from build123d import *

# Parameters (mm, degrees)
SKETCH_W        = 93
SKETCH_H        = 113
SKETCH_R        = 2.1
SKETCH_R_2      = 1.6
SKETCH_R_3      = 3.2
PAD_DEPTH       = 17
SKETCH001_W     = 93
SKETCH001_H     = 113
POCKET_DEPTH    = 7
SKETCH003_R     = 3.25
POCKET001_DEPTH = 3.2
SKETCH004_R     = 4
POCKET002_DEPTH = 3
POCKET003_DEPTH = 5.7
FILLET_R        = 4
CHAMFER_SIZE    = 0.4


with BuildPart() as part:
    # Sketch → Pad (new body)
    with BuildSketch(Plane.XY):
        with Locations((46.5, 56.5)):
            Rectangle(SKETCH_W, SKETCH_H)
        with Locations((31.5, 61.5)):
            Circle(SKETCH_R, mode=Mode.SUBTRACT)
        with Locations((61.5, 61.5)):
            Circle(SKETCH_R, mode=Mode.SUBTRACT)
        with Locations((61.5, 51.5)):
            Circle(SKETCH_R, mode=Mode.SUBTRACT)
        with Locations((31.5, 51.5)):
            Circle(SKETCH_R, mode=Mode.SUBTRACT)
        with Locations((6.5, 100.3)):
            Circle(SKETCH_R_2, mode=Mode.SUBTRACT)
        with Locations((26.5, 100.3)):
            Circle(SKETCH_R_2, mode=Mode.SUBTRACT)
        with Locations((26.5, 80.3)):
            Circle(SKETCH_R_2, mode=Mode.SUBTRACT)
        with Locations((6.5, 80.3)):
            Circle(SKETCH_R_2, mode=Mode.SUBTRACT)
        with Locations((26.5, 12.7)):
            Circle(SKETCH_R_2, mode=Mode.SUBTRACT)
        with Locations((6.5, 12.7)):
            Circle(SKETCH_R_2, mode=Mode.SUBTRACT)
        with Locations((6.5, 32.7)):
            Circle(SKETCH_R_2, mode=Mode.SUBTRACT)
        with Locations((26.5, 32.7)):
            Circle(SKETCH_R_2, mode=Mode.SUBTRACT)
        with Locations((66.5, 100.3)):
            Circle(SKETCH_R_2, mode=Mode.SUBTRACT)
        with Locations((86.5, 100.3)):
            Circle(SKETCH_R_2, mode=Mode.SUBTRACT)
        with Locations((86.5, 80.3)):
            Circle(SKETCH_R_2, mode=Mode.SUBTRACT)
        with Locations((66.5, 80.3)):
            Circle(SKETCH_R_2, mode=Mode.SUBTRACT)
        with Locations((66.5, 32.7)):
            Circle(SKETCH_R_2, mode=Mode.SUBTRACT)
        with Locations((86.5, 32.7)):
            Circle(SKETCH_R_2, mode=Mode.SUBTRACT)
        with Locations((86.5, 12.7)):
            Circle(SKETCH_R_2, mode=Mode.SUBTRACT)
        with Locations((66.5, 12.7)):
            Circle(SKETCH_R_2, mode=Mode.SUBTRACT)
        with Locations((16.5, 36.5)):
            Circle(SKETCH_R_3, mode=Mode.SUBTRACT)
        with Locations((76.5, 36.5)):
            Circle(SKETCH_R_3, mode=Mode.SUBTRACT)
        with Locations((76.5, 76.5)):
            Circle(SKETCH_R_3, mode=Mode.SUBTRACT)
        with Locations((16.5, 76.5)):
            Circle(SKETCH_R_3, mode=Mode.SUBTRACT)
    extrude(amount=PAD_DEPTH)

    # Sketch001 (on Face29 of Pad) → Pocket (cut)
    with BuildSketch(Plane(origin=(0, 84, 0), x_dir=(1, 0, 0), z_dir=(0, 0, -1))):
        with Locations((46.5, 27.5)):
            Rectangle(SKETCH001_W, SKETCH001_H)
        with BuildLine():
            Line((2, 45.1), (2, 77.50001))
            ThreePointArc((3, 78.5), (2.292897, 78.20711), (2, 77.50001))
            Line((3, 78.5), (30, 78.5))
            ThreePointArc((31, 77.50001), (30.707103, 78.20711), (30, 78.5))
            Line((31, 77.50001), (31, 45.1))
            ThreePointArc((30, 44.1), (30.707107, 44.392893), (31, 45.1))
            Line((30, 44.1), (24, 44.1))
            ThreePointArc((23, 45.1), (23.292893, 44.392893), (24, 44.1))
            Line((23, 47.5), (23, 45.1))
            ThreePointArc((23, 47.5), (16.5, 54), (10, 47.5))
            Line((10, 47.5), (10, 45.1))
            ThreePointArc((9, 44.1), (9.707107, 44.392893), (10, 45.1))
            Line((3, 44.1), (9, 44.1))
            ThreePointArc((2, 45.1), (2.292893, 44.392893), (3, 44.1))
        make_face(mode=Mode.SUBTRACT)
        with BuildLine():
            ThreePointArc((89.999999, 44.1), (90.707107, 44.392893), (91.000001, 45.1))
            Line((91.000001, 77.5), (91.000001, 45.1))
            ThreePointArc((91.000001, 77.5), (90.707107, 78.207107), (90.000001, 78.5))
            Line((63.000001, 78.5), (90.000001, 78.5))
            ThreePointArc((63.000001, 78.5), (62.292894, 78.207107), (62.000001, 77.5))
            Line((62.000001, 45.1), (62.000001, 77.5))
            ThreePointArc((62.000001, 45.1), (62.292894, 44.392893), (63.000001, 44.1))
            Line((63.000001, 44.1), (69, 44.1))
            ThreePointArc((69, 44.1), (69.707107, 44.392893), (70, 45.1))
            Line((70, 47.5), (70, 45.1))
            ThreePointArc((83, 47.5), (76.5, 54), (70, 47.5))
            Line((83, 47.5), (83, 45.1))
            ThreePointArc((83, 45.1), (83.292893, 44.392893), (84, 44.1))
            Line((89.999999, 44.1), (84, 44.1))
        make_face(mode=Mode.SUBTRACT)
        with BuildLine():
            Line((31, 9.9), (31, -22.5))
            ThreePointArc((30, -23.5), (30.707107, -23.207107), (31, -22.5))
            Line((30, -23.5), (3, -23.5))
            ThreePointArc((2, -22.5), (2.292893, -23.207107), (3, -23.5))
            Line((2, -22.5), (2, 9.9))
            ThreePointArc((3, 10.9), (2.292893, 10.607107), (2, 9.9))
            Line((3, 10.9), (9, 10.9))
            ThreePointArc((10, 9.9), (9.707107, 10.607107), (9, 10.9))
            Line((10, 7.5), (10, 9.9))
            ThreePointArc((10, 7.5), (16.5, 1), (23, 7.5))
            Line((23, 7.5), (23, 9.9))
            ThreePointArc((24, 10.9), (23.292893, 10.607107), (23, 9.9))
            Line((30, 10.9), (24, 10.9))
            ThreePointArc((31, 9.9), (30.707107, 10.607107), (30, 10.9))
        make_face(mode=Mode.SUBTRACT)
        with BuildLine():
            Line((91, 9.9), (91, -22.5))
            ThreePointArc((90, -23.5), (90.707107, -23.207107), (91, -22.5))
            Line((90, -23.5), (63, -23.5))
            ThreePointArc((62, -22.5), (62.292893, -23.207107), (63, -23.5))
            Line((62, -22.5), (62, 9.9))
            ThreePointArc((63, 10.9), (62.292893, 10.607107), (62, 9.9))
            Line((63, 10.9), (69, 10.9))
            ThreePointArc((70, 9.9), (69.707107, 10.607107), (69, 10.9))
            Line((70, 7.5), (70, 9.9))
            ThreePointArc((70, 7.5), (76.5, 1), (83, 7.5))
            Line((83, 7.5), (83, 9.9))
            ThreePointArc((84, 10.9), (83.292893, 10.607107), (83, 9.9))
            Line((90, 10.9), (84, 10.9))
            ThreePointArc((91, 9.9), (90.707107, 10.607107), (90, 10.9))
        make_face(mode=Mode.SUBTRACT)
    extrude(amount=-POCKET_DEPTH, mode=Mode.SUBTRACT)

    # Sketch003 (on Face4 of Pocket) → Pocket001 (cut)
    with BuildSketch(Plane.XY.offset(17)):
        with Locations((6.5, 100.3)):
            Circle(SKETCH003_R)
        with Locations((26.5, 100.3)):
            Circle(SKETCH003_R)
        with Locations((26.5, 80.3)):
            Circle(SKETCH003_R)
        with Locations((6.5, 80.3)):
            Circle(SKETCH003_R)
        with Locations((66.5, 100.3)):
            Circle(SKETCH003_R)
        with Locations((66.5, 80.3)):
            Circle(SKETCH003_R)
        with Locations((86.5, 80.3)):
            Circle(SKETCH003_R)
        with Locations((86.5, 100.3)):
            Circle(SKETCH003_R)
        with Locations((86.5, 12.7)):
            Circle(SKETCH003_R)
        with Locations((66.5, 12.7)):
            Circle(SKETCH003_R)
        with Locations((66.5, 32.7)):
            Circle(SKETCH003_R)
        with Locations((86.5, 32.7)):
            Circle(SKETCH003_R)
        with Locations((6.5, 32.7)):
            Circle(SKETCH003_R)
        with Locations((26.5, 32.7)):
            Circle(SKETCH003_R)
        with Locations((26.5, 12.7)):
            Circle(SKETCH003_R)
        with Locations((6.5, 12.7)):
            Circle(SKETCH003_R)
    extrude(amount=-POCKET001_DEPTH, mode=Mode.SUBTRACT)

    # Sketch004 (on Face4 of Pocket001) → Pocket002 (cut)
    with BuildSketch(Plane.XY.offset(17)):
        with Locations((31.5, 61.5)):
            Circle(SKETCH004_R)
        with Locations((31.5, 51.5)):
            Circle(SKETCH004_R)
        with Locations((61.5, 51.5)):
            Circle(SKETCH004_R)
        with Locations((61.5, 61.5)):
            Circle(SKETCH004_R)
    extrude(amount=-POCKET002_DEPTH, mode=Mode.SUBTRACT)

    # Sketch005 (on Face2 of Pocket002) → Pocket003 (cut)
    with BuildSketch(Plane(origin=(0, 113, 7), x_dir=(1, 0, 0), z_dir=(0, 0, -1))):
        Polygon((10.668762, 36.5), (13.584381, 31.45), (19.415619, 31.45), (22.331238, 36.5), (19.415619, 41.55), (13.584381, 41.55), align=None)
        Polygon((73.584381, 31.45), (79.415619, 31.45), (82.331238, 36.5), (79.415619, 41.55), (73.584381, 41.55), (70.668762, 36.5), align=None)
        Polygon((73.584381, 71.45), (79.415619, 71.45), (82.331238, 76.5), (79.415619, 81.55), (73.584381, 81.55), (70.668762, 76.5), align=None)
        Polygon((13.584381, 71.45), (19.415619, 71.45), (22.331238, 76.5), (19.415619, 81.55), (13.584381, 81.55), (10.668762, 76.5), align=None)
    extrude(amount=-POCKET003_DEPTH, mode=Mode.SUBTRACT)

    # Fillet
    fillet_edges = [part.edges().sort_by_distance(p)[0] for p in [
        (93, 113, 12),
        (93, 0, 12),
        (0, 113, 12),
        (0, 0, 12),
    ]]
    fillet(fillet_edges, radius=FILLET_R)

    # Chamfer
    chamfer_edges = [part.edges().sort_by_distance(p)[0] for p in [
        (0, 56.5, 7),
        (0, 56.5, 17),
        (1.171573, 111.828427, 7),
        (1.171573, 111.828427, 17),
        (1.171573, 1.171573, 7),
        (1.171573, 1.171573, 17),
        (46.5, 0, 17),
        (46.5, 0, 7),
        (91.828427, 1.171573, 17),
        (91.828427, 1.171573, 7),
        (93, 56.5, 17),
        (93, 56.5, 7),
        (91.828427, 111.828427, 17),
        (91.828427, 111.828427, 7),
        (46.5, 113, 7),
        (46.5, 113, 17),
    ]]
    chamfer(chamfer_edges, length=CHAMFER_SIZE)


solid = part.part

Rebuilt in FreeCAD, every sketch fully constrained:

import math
import FreeCAD as App
import Part
import Sketcher
from FreeCAD import Vector
Q = App.Units.Quantity


def edges_at(feature, points):
    """Names of the edges that pass closest to the given points."""
    edges = feature.Shape.Edges
    near = lambda p: min(range(len(edges)), key=lambda i: edges[i].distToShape(Part.Vertex(*p))[0])
    return sorted({f"Edge{near(p) + 1}" for p in points})

doc = App.newDocument("Part")
body = doc.addObject("PartDesign::Body", "Body")

# Sketch on XY plane
sketch1 = doc.addObject("Sketcher::SketchObject", "Sketch")
body.addObject(sketch1)
sketch1.AttachmentSupport = (doc.XY_Plane, [""])
sketch1.MapMode = "FlatFace"
sketch1.addGeometry([
    Part.LineSegment(Vector(0, 113, 0), Vector(0, 0, 0)),  # 0
    Part.LineSegment(Vector(0, 0, 0), Vector(93, 0, 0)),  # 1
    Part.LineSegment(Vector(93, 0, 0), Vector(93, 113, 0)),  # 2
    Part.LineSegment(Vector(93, 113, 0), Vector(0, 113, 0)),  # 3
    Part.Circle(Vector(6.5, 12.7, 0), Vector(0, 0, 1), 1.6),  # 4
    Part.Circle(Vector(6.5, 32.7, 0), Vector(0, 0, 1), 1.6),  # 5
    Part.Circle(Vector(26.5, 12.7, 0), Vector(0, 0, 1), 1.6),  # 6
    Part.Circle(Vector(26.5, 32.7, 0), Vector(0, 0, 1), 1.6),  # 7
    Part.Circle(Vector(16.5, 36.5, 0), Vector(0, 0, 1), 3.2),  # 8
    Part.Circle(Vector(31.5, 51.5, 0), Vector(0, 0, 1), 2.1),  # 9
    Part.Circle(Vector(66.5, 12.7, 0), Vector(0, 0, 1), 1.6),  # 10
    Part.Circle(Vector(66.5, 32.7, 0), Vector(0, 0, 1), 1.6),  # 11
    Part.Circle(Vector(86.5, 12.7, 0), Vector(0, 0, 1), 1.6),  # 12
    Part.Circle(Vector(86.5, 32.7, 0), Vector(0, 0, 1), 1.6),  # 13
    Part.Circle(Vector(61.5, 51.5, 0), Vector(0, 0, 1), 2.1),  # 14
    Part.Circle(Vector(76.5, 36.5, 0), Vector(0, 0, 1), 3.2),  # 15
    Part.Circle(Vector(16.5, 76.5, 0), Vector(0, 0, 1), 3.2),  # 16
    Part.Circle(Vector(31.5, 61.5, 0), Vector(0, 0, 1), 2.1),  # 17
    Part.Circle(Vector(6.5, 80.3, 0), Vector(0, 0, 1), 1.6),  # 18
    Part.Circle(Vector(6.5, 100.3, 0), Vector(0, 0, 1), 1.6),  # 19
    Part.Circle(Vector(26.5, 80.3, 0), Vector(0, 0, 1), 1.6),  # 20
    Part.Circle(Vector(26.5, 100.3, 0), Vector(0, 0, 1), 1.6),  # 21
    Part.Circle(Vector(61.5, 61.5, 0), Vector(0, 0, 1), 2.1),  # 22
    Part.Circle(Vector(76.5, 76.5, 0), Vector(0, 0, 1), 3.2),  # 23
    Part.Circle(Vector(66.5, 80.3, 0), Vector(0, 0, 1), 1.6),  # 24
    Part.Circle(Vector(66.5, 100.3, 0), Vector(0, 0, 1), 1.6),  # 25
    Part.Circle(Vector(86.5, 80.3, 0), Vector(0, 0, 1), 1.6),  # 26
    Part.Circle(Vector(86.5, 100.3, 0), Vector(0, 0, 1), 1.6),  # 27
], False)
sketch1.addConstraint([
    Sketcher.Constraint("Coincident", 0, 2, 1, 1),
    Sketcher.Constraint("Coincident", 1, 2, 2, 1),
    Sketcher.Constraint("Coincident", 2, 2, 3, 1),
    Sketcher.Constraint("Coincident", 3, 2, 0, 1),
    Sketcher.Constraint("Vertical", 0),
    Sketcher.Constraint("Horizontal", 1),
    Sketcher.Constraint("Vertical", 2),
    Sketcher.Constraint("Horizontal", 3),
    Sketcher.Constraint("Coincident", 0, 2, -1, 1),
    Sketcher.Constraint("Equal", 4, 5),
    Sketcher.Constraint("Equal", 5, 6),
    Sketcher.Constraint("Equal", 6, 7),
    Sketcher.Constraint("Equal", 7, 10),
    Sketcher.Constraint("Equal", 10, 11),
    Sketcher.Constraint("Equal", 11, 12),
    Sketcher.Constraint("Equal", 12, 13),
    Sketcher.Constraint("Equal", 9, 14),
    Sketcher.Constraint("Equal", 8, 15),
    Sketcher.Constraint("Equal", 15, 16),
    Sketcher.Constraint("Equal", 14, 17),
    Sketcher.Constraint("Equal", 13, 18),
    Sketcher.Constraint("Equal", 18, 19),
    Sketcher.Constraint("Equal", 19, 20),
    Sketcher.Constraint("Equal", 20, 21),
    Sketcher.Constraint("Equal", 17, 22),
    Sketcher.Constraint("Equal", 16, 23),
    Sketcher.Constraint("Equal", 21, 24),
    Sketcher.Constraint("Equal", 24, 25),
    Sketcher.Constraint("Equal", 25, 26),
    Sketcher.Constraint("Equal", 26, 27),
    Sketcher.Constraint("Horizontal", 4, 3, 6, 3),
    Sketcher.Constraint("Horizontal", 5, 3, 7, 3),
    Sketcher.Constraint("Horizontal", 6, 3, 10, 3),
    Sketcher.Constraint("Horizontal", 7, 3, 11, 3),
    Sketcher.Constraint("Horizontal", 10, 3, 12, 3),
    Sketcher.Constraint("Horizontal", 11, 3, 13, 3),
    Sketcher.Constraint("Horizontal", 9, 3, 14, 3),
    Sketcher.Constraint("Horizontal", 8, 3, 15, 3),
    Sketcher.Constraint("Horizontal", 18, 3, 20, 3),
    Sketcher.Constraint("Horizontal", 19, 3, 21, 3),
    Sketcher.Constraint("Horizontal", 17, 3, 22, 3),
    Sketcher.Constraint("Horizontal", 16, 3, 23, 3),
    Sketcher.Constraint("Horizontal", 20, 3, 24, 3),
    Sketcher.Constraint("Horizontal", 21, 3, 25, 3),
    Sketcher.Constraint("Horizontal", 24, 3, 26, 3),
    Sketcher.Constraint("Horizontal", 25, 3, 27, 3),
    Sketcher.Constraint("Vertical", 4, 3, 5, 3),
    Sketcher.Constraint("Vertical", 6, 3, 7, 3),
    Sketcher.Constraint("Vertical", 10, 3, 11, 3),
    Sketcher.Constraint("Vertical", 12, 3, 13, 3),
    Sketcher.Constraint("Vertical", 8, 3, 16, 3),
    Sketcher.Constraint("Vertical", 9, 3, 17, 3),
    Sketcher.Constraint("Vertical", 5, 3, 18, 3),
    Sketcher.Constraint("Vertical", 18, 3, 19, 3),
    Sketcher.Constraint("Vertical", 7, 3, 20, 3),
    Sketcher.Constraint("Vertical", 20, 3, 21, 3),
    Sketcher.Constraint("Vertical", 14, 3, 22, 3),
    Sketcher.Constraint("Vertical", 15, 3, 23, 3),
    Sketcher.Constraint("Vertical", 11, 3, 24, 3),
    Sketcher.Constraint("Vertical", 24, 3, 25, 3),
    Sketcher.Constraint("Vertical", 13, 3, 26, 3),
    Sketcher.Constraint("Vertical", 26, 3, 27, 3),
    Sketcher.Constraint("Diameter", 4, 3.2),
    Sketcher.Constraint("Diameter", 8, 6.4),
    Sketcher.Constraint("Diameter", 9, 4.2),
    Sketcher.Constraint("DistanceX", 1, 1, 1, 2, 93.0),
    Sketcher.Constraint("DistanceY", 0, 2, 0, 1, 113.0),
    Sketcher.Constraint("DistanceY", 4, 3, 5, 3, 20.0),
    Sketcher.Constraint("DistanceX", 4, 3, 6, 3, 20.0),
    Sketcher.Constraint("DistanceX", 5, 3, 8, 3, 10.0),
    Sketcher.Constraint("DistanceX", 7, 3, 9, 3, 5.0),
    Sketcher.Constraint("DistanceY", 8, 3, 9, 3, 15.0),
    Sketcher.Constraint("DistanceX", 6, 3, 10, 3, 40.0),
    Sketcher.Constraint("DistanceX", 10, 3, 12, 3, 20.0),
    Sketcher.Constraint("DistanceX", 14, 3, 11, 3, 5.0),
    Sketcher.Constraint("DistanceX", 11, 3, 15, 3, 10.0),
    Sketcher.Constraint("DistanceY", 9, 3, 16, 3, 25.0),
    Sketcher.Constraint("DistanceY", 9, 3, 17, 3, 10.0),
    Sketcher.Constraint("DistanceY", 18, 3, 19, 3, 20.0),
    Sketcher.Constraint("DistanceX", -1, 1, 4, 3, 6.5),
    Sketcher.Constraint("DistanceY", -1, 1, 4, 3, 12.7),
    Sketcher.Constraint("DistanceY", -1, 1, 8, 3, 36.5),
    Sketcher.Constraint("DistanceY", -1, 1, 18, 3, 80.3),
])
pad1 = doc.addObject("PartDesign::Pad", "Pad")
body.addObject(pad1)
pad1.Profile = sketch1
pad1.Length = 17

# Sketch on XY plane
sketch2 = doc.addObject("Sketcher::SketchObject", "Sketch001")
body.addObject(sketch2)
sketch2.AttachmentSupport = (doc.XY_Plane, [""])
sketch2.MapMode = "FlatFace"
sketch2.addGeometry([
    Part.LineSegment(Vector(0, 0, 0), Vector(0, 113, 0)),  # 0
    Part.LineSegment(Vector(0, 113, 0), Vector(93, 113, 0)),  # 1
    Part.LineSegment(Vector(93, 113, 0), Vector(93, 0, 0)),  # 2
    Part.LineSegment(Vector(93, 0, 0), Vector(0, 0, 0)),  # 3
    Part.ArcOfCircle(Part.Circle(Vector(30, 74.1, 0), Vector(0, 0, 1), 1), math.radians(-90), math.radians(0)),  # 4
    Part.LineSegment(Vector(31, 74.1, 0), Vector(31, 106.5, 0)),  # 5
    Part.ArcOfCircle(Part.Circle(Vector(30, 106.5, 0), Vector(0, 0, 1), 1), math.radians(0), math.radians(90)),  # 6
    Part.LineSegment(Vector(30, 107.5, 0), Vector(3, 107.5, 0)),  # 7
    Part.ArcOfCircle(Part.Circle(Vector(3, 106.5, 0), Vector(0, 0, 1), 1), math.radians(90), math.radians(180)),  # 8
    Part.LineSegment(Vector(2, 106.5, 0), Vector(2, 74.1, 0)),  # 9
    Part.ArcOfCircle(Part.Circle(Vector(3, 74.1, 0), Vector(0, 0, 1), 1), math.radians(180), math.radians(270)),  # 10
    Part.LineSegment(Vector(3, 73.1, 0), Vector(9, 73.1, 0)),  # 11
    Part.ArcOfCircle(Part.Circle(Vector(9, 74.1, 0), Vector(0, 0, 1), 1), math.radians(-90), math.radians(0)),  # 12
    Part.LineSegment(Vector(10, 74.1, 0), Vector(10, 76.5, 0)),  # 13
    Part.ArcOfCircle(Part.Circle(Vector(16.5, 76.5, 0), Vector(0, 0, 1), 6.5), math.radians(0), math.radians(180)),  # 14
    Part.LineSegment(Vector(23, 76.5, 0), Vector(23, 74.1, 0)),  # 15
    Part.ArcOfCircle(Part.Circle(Vector(24, 74.1, 0), Vector(0, 0, 1), 1), math.radians(180), math.radians(270)),  # 16
    Part.LineSegment(Vector(24, 73.1, 0), Vector(30, 73.1, 0)),  # 17
    Part.ArcOfCircle(Part.Circle(Vector(90, 74.1, 0), Vector(0, 0, 1), 1), math.radians(-90), math.radians(0)),  # 18
    Part.LineSegment(Vector(91, 74.1, 0), Vector(91, 106.5, 0)),  # 19
    Part.ArcOfCircle(Part.Circle(Vector(90, 106.5, 0), Vector(0, 0, 1), 1), math.radians(0), math.radians(90)),  # 20
    Part.LineSegment(Vector(90, 107.5, 0), Vector(63, 107.5, 0)),  # 21
    Part.ArcOfCircle(Part.Circle(Vector(63, 106.5, 0), Vector(0, 0, 1), 1), math.radians(90), math.radians(180)),  # 22
    Part.LineSegment(Vector(62, 106.5, 0), Vector(62, 74.1, 0)),  # 23
    Part.ArcOfCircle(Part.Circle(Vector(63, 74.1, 0), Vector(0, 0, 1), 1), math.radians(180), math.radians(270)),  # 24
    Part.LineSegment(Vector(63, 73.1, 0), Vector(69, 73.1, 0)),  # 25
    Part.ArcOfCircle(Part.Circle(Vector(69, 74.1, 0), Vector(0, 0, 1), 1), math.radians(-90), math.radians(0)),  # 26
    Part.LineSegment(Vector(70, 74.1, 0), Vector(70, 76.5, 0)),  # 27
    Part.ArcOfCircle(Part.Circle(Vector(76.5, 76.5, 0), Vector(0, 0, 1), 6.5), math.radians(0), math.radians(180)),  # 28
    Part.LineSegment(Vector(83, 76.5, 0), Vector(83, 74.1, 0)),  # 29
    Part.ArcOfCircle(Part.Circle(Vector(84, 74.1, 0), Vector(0, 0, 1), 1), math.radians(180), math.radians(270)),  # 30
    Part.LineSegment(Vector(84, 73.1, 0), Vector(90, 73.1, 0)),  # 31
    Part.ArcOfCircle(Part.Circle(Vector(3, 38.9, 0), Vector(0, 0, 1), 1), math.radians(90), math.radians(180)),  # 32
    Part.LineSegment(Vector(2, 38.9, 0), Vector(2, 6.5, 0)),  # 33
    Part.ArcOfCircle(Part.Circle(Vector(3, 6.5, 0), Vector(0, 0, 1), 1), math.radians(-180), math.radians(-90)),  # 34
    Part.LineSegment(Vector(3, 5.5, 0), Vector(30, 5.5, 0)),  # 35
    Part.ArcOfCircle(Part.Circle(Vector(30, 6.5, 0), Vector(0, 0, 1), 1), math.radians(-90), math.radians(0)),  # 36
    Part.LineSegment(Vector(31, 6.5, 0), Vector(31, 38.9, 0)),  # 37
    Part.ArcOfCircle(Part.Circle(Vector(30, 38.9, 0), Vector(0, 0, 1), 1), math.radians(0), math.radians(90)),  # 38
    Part.LineSegment(Vector(30, 39.9, 0), Vector(24, 39.9, 0)),  # 39
    Part.ArcOfCircle(Part.Circle(Vector(24, 38.9, 0), Vector(0, 0, 1), 1), math.radians(90), math.radians(180)),  # 40
    Part.LineSegment(Vector(23, 38.9, 0), Vector(23, 36.5, 0)),  # 41
    Part.ArcOfCircle(Part.Circle(Vector(16.5, 36.5, 0), Vector(0, 0, 1), 6.5), math.radians(180), math.radians(360)),  # 42
    Part.LineSegment(Vector(10, 36.5, 0), Vector(10, 38.9, 0)),  # 43
    Part.ArcOfCircle(Part.Circle(Vector(9, 38.9, 0), Vector(0, 0, 1), 1), math.radians(0), math.radians(90)),  # 44
    Part.LineSegment(Vector(9, 39.9, 0), Vector(3, 39.9, 0)),  # 45
    Part.ArcOfCircle(Part.Circle(Vector(90, 38.9, 0), Vector(0, 0, 1), 1), math.radians(0), math.radians(90)),  # 46
    Part.LineSegment(Vector(90, 39.9, 0), Vector(84, 39.9, 0)),  # 47
    Part.ArcOfCircle(Part.Circle(Vector(84, 38.9, 0), Vector(0, 0, 1), 1), math.radians(90), math.radians(180)),  # 48
    Part.LineSegment(Vector(83, 38.9, 0), Vector(83, 36.5, 0)),  # 49
    Part.ArcOfCircle(Part.Circle(Vector(76.5, 36.5, 0), Vector(0, 0, 1), 6.5), math.radians(180), math.radians(360)),  # 50
    Part.LineSegment(Vector(70, 36.5, 0), Vector(70, 38.9, 0)),  # 51
    Part.ArcOfCircle(Part.Circle(Vector(69, 38.9, 0), Vector(0, 0, 1), 1), math.radians(0), math.radians(90)),  # 52
    Part.LineSegment(Vector(69, 39.9, 0), Vector(63, 39.9, 0)),  # 53
    Part.ArcOfCircle(Part.Circle(Vector(63, 38.9, 0), Vector(0, 0, 1), 1), math.radians(90), math.radians(180)),  # 54
    Part.LineSegment(Vector(62, 38.9, 0), Vector(62, 6.5, 0)),  # 55
    Part.ArcOfCircle(Part.Circle(Vector(63, 6.5, 0), Vector(0, 0, 1), 1), math.radians(180), math.radians(270)),  # 56
    Part.LineSegment(Vector(63, 5.5, 0), Vector(90, 5.5, 0)),  # 57
    Part.ArcOfCircle(Part.Circle(Vector(90, 6.5, 0), Vector(0, 0, 1), 1), math.radians(-90), math.radians(0)),  # 58
    Part.LineSegment(Vector(91, 6.5, 0), Vector(91, 38.9, 0)),  # 59
], False)
sketch2.addConstraint([
    Sketcher.Constraint("Coincident", 0, 2, 1, 1),
    Sketcher.Constraint("Coincident", 1, 2, 2, 1),
    Sketcher.Constraint("Coincident", 2, 2, 3, 1),
    Sketcher.Constraint("Coincident", 3, 2, 0, 1),
    Sketcher.Constraint("Tangent", 4, 2, 5, 1),
    Sketcher.Constraint("Tangent", 5, 2, 6, 1),
    Sketcher.Constraint("Tangent", 6, 2, 7, 1),
    Sketcher.Constraint("Tangent", 7, 2, 8, 1),
    Sketcher.Constraint("Tangent", 8, 2, 9, 1),
    Sketcher.Constraint("Tangent", 9, 2, 10, 1),
    Sketcher.Constraint("Tangent", 10, 2, 11, 1),
    Sketcher.Constraint("Tangent", 11, 2, 12, 1),
    Sketcher.Constraint("Tangent", 12, 2, 13, 1),
    Sketcher.Constraint("Tangent", 13, 2, 14, 2),
    Sketcher.Constraint("Tangent", 14, 1, 15, 1),
    Sketcher.Constraint("Tangent", 15, 2, 16, 1),
    Sketcher.Constraint("Tangent", 16, 2, 17, 1),
    Sketcher.Constraint("Tangent", 17, 2, 4, 1),
    Sketcher.Constraint("Tangent", 18, 2, 19, 1),
    Sketcher.Constraint("Tangent", 19, 2, 20, 1),
    Sketcher.Constraint("Tangent", 20, 2, 21, 1),
    Sketcher.Constraint("Tangent", 21, 2, 22, 1),
    Sketcher.Constraint("Tangent", 22, 2, 23, 1),
    Sketcher.Constraint("Tangent", 23, 2, 24, 1),
    Sketcher.Constraint("Tangent", 24, 2, 25, 1),
    Sketcher.Constraint("Tangent", 25, 2, 26, 1),
    Sketcher.Constraint("Tangent", 26, 2, 27, 1),
    Sketcher.Constraint("Tangent", 27, 2, 28, 2),
    Sketcher.Constraint("Tangent", 28, 1, 29, 1),
    Sketcher.Constraint("Tangent", 29, 2, 30, 1),
    Sketcher.Constraint("Tangent", 30, 2, 31, 1),
    Sketcher.Constraint("Tangent", 31, 2, 18, 1),
    Sketcher.Constraint("Tangent", 32, 2, 33, 1),
    Sketcher.Constraint("Coincident", 33, 2, 34, 1),
    Sketcher.Constraint("Tangent", 34, 2, 35, 1),
    Sketcher.Constraint("Tangent", 35, 2, 36, 1),
    Sketcher.Constraint("Coincident", 36, 2, 37, 1),
    Sketcher.Constraint("Tangent", 37, 2, 38, 1),
    Sketcher.Constraint("Tangent", 38, 2, 39, 1),
    Sketcher.Constraint("Tangent", 39, 2, 40, 1),
    Sketcher.Constraint("Tangent", 40, 2, 41, 1),
    Sketcher.Constraint("Tangent", 41, 2, 42, 2),
    Sketcher.Constraint("Tangent", 42, 1, 43, 1),
    Sketcher.Constraint("Tangent", 43, 2, 44, 1),
    Sketcher.Constraint("Tangent", 44, 2, 45, 1),
    Sketcher.Constraint("Tangent", 45, 2, 32, 1),
    Sketcher.Constraint("Tangent", 46, 2, 47, 1),
    Sketcher.Constraint("Tangent", 47, 2, 48, 1),
    Sketcher.Constraint("Tangent", 48, 2, 49, 1),
    Sketcher.Constraint("Tangent", 49, 2, 50, 2),
    Sketcher.Constraint("Tangent", 50, 1, 51, 1),
    Sketcher.Constraint("Tangent", 51, 2, 52, 1),
    Sketcher.Constraint("Tangent", 52, 2, 53, 1),
    Sketcher.Constraint("Tangent", 53, 2, 54, 1),
    Sketcher.Constraint("Tangent", 54, 2, 55, 1),
    Sketcher.Constraint("Tangent", 55, 2, 56, 1),
    Sketcher.Constraint("Tangent", 56, 2, 57, 1),
    Sketcher.Constraint("Tangent", 57, 2, 58, 1),
    Sketcher.Constraint("Tangent", 58, 2, 59, 1),
    Sketcher.Constraint("Tangent", 59, 2, 46, 1),
    Sketcher.Constraint("Vertical", 0),
    Sketcher.Constraint("Horizontal", 1),
    Sketcher.Constraint("Vertical", 2),
    Sketcher.Constraint("Horizontal", 3),
    Sketcher.Constraint("Vertical", 5),
    Sketcher.Constraint("Horizontal", 7),
    Sketcher.Constraint("Vertical", 9),
    Sketcher.Constraint("Horizontal", 11),
    Sketcher.Constraint("Vertical", 13),
    Sketcher.Constraint("Vertical", 15),
    Sketcher.Constraint("Horizontal", 17),
    Sketcher.Constraint("Vertical", 19),
    Sketcher.Constraint("Horizontal", 21),
    Sketcher.Constraint("Vertical", 23),
    Sketcher.Constraint("Horizontal", 25),
    Sketcher.Constraint("Vertical", 27),
    Sketcher.Constraint("Vertical", 29),
    Sketcher.Constraint("Horizontal", 31),
    Sketcher.Constraint("Vertical", 33),
    Sketcher.Constraint("Horizontal", 35),
    Sketcher.Constraint("Vertical", 37),
    Sketcher.Constraint("Horizontal", 39),
    Sketcher.Constraint("Vertical", 41),
    Sketcher.Constraint("Vertical", 43),
    Sketcher.Constraint("Horizontal", 45),
    Sketcher.Constraint("Horizontal", 47),
    Sketcher.Constraint("Vertical", 49),
    Sketcher.Constraint("Vertical", 51),
    Sketcher.Constraint("Horizontal", 53),
    Sketcher.Constraint("Vertical", 55),
    Sketcher.Constraint("Horizontal", 57),
    Sketcher.Constraint("Vertical", 59),
    Sketcher.Constraint("Coincident", 3, 2, -1, 1),
    Sketcher.Constraint("Equal", 4, 6),
    Sketcher.Constraint("Equal", 6, 8),
    Sketcher.Constraint("Equal", 8, 10),
    Sketcher.Constraint("Equal", 10, 12),
    Sketcher.Constraint("Equal", 12, 16),
    Sketcher.Constraint("Equal", 16, 18),
    Sketcher.Constraint("Equal", 18, 20),
    Sketcher.Constraint("Equal", 20, 22),
    Sketcher.Constraint("Equal", 22, 24),
    Sketcher.Constraint("Equal", 24, 26),
    Sketcher.Constraint("Equal", 14, 28),
    Sketcher.Constraint("Equal", 26, 30),
    Sketcher.Constraint("Equal", 30, 32),
    Sketcher.Constraint("Equal", 32, 34),
    Sketcher.Constraint("Equal", 34, 36),
    Sketcher.Constraint("Equal", 36, 38),
    Sketcher.Constraint("Equal", 38, 40),
    Sketcher.Constraint("Equal", 28, 42),
    Sketcher.Constraint("Equal", 40, 44),
    Sketcher.Constraint("Equal", 44, 46),
    Sketcher.Constraint("Equal", 46, 48),
    Sketcher.Constraint("Equal", 42, 50),
    Sketcher.Constraint("Equal", 48, 52),
    Sketcher.Constraint("Equal", 52, 54),
    Sketcher.Constraint("Equal", 54, 56),
    Sketcher.Constraint("Equal", 56, 58),
    Sketcher.Constraint("Horizontal", 4, 3, 10, 3),
    Sketcher.Constraint("Horizontal", 16, 3, 18, 3),
    Sketcher.Constraint("Horizontal", 8, 3, 20, 3),
    Sketcher.Constraint("Horizontal", 18, 3, 24, 3),
    Sketcher.Constraint("Horizontal", 14, 3, 28, 3),
    Sketcher.Constraint("Horizontal", 32, 3, 38, 3),
    Sketcher.Constraint("Horizontal", 44, 3, 46, 3),
    Sketcher.Constraint("Horizontal", 42, 3, 50, 3),
    Sketcher.Constraint("Horizontal", 48, 3, 52, 3),
    Sketcher.Constraint("Horizontal", 36, 3, 56, 3),
    Sketcher.Constraint("Horizontal", 33, 2, 36, 2),
    Sketcher.Constraint("Vertical", 10, 3, 32, 3),
    Sketcher.Constraint("Vertical", 6, 3, 36, 3),
    Sketcher.Constraint("Vertical", 16, 3, 40, 3),
    Sketcher.Constraint("Vertical", 20, 3, 46, 3),
    Sketcher.Constraint("Vertical", 30, 3, 48, 3),
    Sketcher.Constraint("Vertical", 24, 3, 54, 3),
    Sketcher.Constraint("Equal", 11, 17),
    Sketcher.Constraint("Equal", 7, 21),
    Sketcher.Constraint("Equal", 17, 25),
    Sketcher.Constraint("Equal", 29, 41),
    Sketcher.Constraint("Equal", 23, 55),
    Sketcher.Constraint("Radius", 4, 0.999999),
    Sketcher.Constraint("Radius", 14, 6.5),
    Sketcher.Constraint("DistanceX", 1, 1, 1, 2, 93.0),
    Sketcher.Constraint("DistanceX", 7, 2, 7, 1, 27.0),
    Sketcher.Constraint("DistanceY", 0, 1, 0, 2, 113.0),
    Sketcher.Constraint("DistanceY", 5, 1, 5, 2, 32.4),
    Sketcher.Constraint("DistanceY", 13, 1, 13, 2, 2.4),
    Sketcher.Constraint("DistanceX", -1, 1, 4, 3, 30.000001),
    Sketcher.Constraint("DistanceX", -1, 1, 18, 3, 90.000001),
    Sketcher.Constraint("DistanceY", -1, 1, 4, 3, 74.099999),
    Sketcher.Constraint("DistanceY", -1, 1, 32, 3, 38.900001),
    Sketcher.Constraint("DistanceY", 33, 2, 33, 1, 32.40001),
])
pocket1 = doc.addObject("PartDesign::Pocket", "Pocket")
body.addObject(pocket1)
pocket1.Profile = sketch2
pocket1.Length = 7
pocket1.Reversed = True

# Sketch on XY plane
sketch3 = doc.addObject("Sketcher::SketchObject", "Sketch002")
body.addObject(sketch3)
sketch3.AttachmentSupport = (doc.XY_Plane, [""])
sketch3.MapMode = "FlatFace"
sketch3.AttachmentOffset = App.Placement(Vector(0, 0, 17), App.Rotation())
sketch3.addGeometry([
    Part.Circle(Vector(6.5, 100.3, 0), Vector(0, 0, 1), 3.2),  # 0
    Part.Circle(Vector(26.5, 100.3, 0), Vector(0, 0, 1), 3.2),  # 1
    Part.Circle(Vector(26.5, 80.3, 0), Vector(0, 0, 1), 3.2),  # 2
    Part.Circle(Vector(6.5, 80.3, 0), Vector(0, 0, 1), 3.2),  # 3
    Part.Circle(Vector(66.5, 100.3, 0), Vector(0, 0, 1), 3.2),  # 4
    Part.Circle(Vector(66.5, 80.3, 0), Vector(0, 0, 1), 3.2),  # 5
    Part.Circle(Vector(86.5, 80.3, 0), Vector(0, 0, 1), 3.2),  # 6
    Part.Circle(Vector(86.5, 100.3, 0), Vector(0, 0, 1), 3.2),  # 7
    Part.Circle(Vector(86.5, 12.7, 0), Vector(0, 0, 1), 3.2),  # 8
    Part.Circle(Vector(66.5, 12.7, 0), Vector(0, 0, 1), 3.2),  # 9
    Part.Circle(Vector(66.5, 32.7, 0), Vector(0, 0, 1), 3.2),  # 10
    Part.Circle(Vector(86.5, 32.7, 0), Vector(0, 0, 1), 3.2),  # 11
    Part.Circle(Vector(6.5, 32.7, 0), Vector(0, 0, 1), 3.2),  # 12
    Part.Circle(Vector(26.5, 32.7, 0), Vector(0, 0, 1), 3.2),  # 13
    Part.Circle(Vector(26.5, 12.7, 0), Vector(0, 0, 1), 3.2),  # 14
    Part.Circle(Vector(6.5, 12.7, 0), Vector(0, 0, 1), 3.2),  # 15
], False)
sketch3.addConstraint([
    Sketcher.Constraint("Equal", 0, 1),
    Sketcher.Constraint("Equal", 1, 2),
    Sketcher.Constraint("Equal", 2, 3),
    Sketcher.Constraint("Equal", 3, 4),
    Sketcher.Constraint("Equal", 4, 5),
    Sketcher.Constraint("Equal", 5, 6),
    Sketcher.Constraint("Equal", 6, 7),
    Sketcher.Constraint("Equal", 7, 8),
    Sketcher.Constraint("Equal", 8, 9),
    Sketcher.Constraint("Equal", 9, 10),
    Sketcher.Constraint("Equal", 10, 11),
    Sketcher.Constraint("Equal", 11, 12),
    Sketcher.Constraint("Equal", 12, 13),
    Sketcher.Constraint("Equal", 13, 14),
    Sketcher.Constraint("Equal", 14, 15),
    Sketcher.Constraint("Horizontal", 0, 3, 1, 3),
    Sketcher.Constraint("Horizontal", 2, 3, 3, 3),
    Sketcher.Constraint("Horizontal", 1, 3, 4, 3),
    Sketcher.Constraint("Horizontal", 3, 3, 5, 3),
    Sketcher.Constraint("Horizontal", 5, 3, 6, 3),
    Sketcher.Constraint("Horizontal", 4, 3, 7, 3),
    Sketcher.Constraint("Horizontal", 8, 3, 9, 3),
    Sketcher.Constraint("Horizontal", 10, 3, 11, 3),
    Sketcher.Constraint("Horizontal", 11, 3, 12, 3),
    Sketcher.Constraint("Horizontal", 12, 3, 13, 3),
    Sketcher.Constraint("Horizontal", 9, 3, 14, 3),
    Sketcher.Constraint("Horizontal", 14, 3, 15, 3),
    Sketcher.Constraint("Vertical", 1, 3, 2, 3),
    Sketcher.Constraint("Vertical", 0, 3, 3, 3),
    Sketcher.Constraint("Vertical", 4, 3, 5, 3),
    Sketcher.Constraint("Vertical", 6, 3, 7, 3),
    Sketcher.Constraint("Vertical", 7, 3, 8, 3),
    Sketcher.Constraint("Vertical", 5, 3, 9, 3),
    Sketcher.Constraint("Vertical", 9, 3, 10, 3),
    Sketcher.Constraint("Vertical", 8, 3, 11, 3),
    Sketcher.Constraint("Vertical", 3, 3, 12, 3),
    Sketcher.Constraint("Vertical", 2, 3, 13, 3),
    Sketcher.Constraint("Vertical", 13, 3, 14, 3),
    Sketcher.Constraint("Vertical", 12, 3, 15, 3),
    Sketcher.Constraint("Diameter", 0, 6.5),
    Sketcher.Constraint("DistanceX", 0, 3, 1, 3, 20.0),
    Sketcher.Constraint("DistanceY", 2, 3, 1, 3, 20.0),
    Sketcher.Constraint("DistanceX", 1, 3, 4, 3, 40.0),
    Sketcher.Constraint("DistanceX", 5, 3, 6, 3, 20.0),
    Sketcher.Constraint("DistanceY", 9, 3, 10, 3, 20.0),
    Sketcher.Constraint("DistanceX", -1, 1, 0, 3, 6.5),
    Sketcher.Constraint("DistanceY", -1, 1, 0, 3, 100.3),
    Sketcher.Constraint("DistanceY", -1, 1, 8, 3, 12.7),
])
pocket2 = doc.addObject("PartDesign::Pocket", "Pocket001")
body.addObject(pocket2)
pocket2.Profile = sketch3
pocket2.Length = 3.2

# Sketch on XY plane
sketch4 = doc.addObject("Sketcher::SketchObject", "Sketch003")
body.addObject(sketch4)
sketch4.AttachmentSupport = (doc.XY_Plane, [""])
sketch4.MapMode = "FlatFace"
sketch4.AttachmentOffset = App.Placement(Vector(0, 0, 17), App.Rotation())
sketch4.addGeometry([
    Part.Circle(Vector(31.5, 61.5, 0), Vector(0, 0, 1), 4),
    Part.Circle(Vector(31.5, 51.5, 0), Vector(0, 0, 1), 4),
    Part.Circle(Vector(61.5, 51.5, 0), Vector(0, 0, 1), 4),
    Part.Circle(Vector(61.5, 61.5, 0), Vector(0, 0, 1), 4),
], False)
sketch4.addConstraint([
    Sketcher.Constraint("Equal", 0, 1),
    Sketcher.Constraint("Equal", 1, 2),
    Sketcher.Constraint("Equal", 2, 3),
    Sketcher.Constraint("Horizontal", 1, 3, 2, 3),
    Sketcher.Constraint("Horizontal", 0, 3, 3, 3),
    Sketcher.Constraint("Vertical", 0, 3, 1, 3),
    Sketcher.Constraint("Vertical", 2, 3, 3, 3),
    Sketcher.Constraint("Diameter", 0, 8.0),
    Sketcher.Constraint("DistanceY", 1, 3, 0, 3, 10.0),
    Sketcher.Constraint("DistanceX", 1, 3, 2, 3, 30.0),
    Sketcher.Constraint("DistanceX", -1, 1, 0, 3, 31.5),
    Sketcher.Constraint("DistanceY", -1, 1, 0, 3, 61.5),
])
pocket3 = doc.addObject("PartDesign::Pocket", "Pocket002")
body.addObject(pocket3)
pocket3.Profile = sketch4
pocket3.Length = 3

# Sketch on XY plane
sketch5 = doc.addObject("Sketcher::SketchObject", "Sketch004")
body.addObject(sketch5)
sketch5.AttachmentSupport = (doc.XY_Plane, [""])
sketch5.MapMode = "FlatFace"
sketch5.AttachmentOffset = App.Placement(Vector(0, 0, 7), App.Rotation())
sketch5.addGeometry([
    Part.LineSegment(Vector(11, 76, 0), Vector(14, 82, 0)),  # 0
    Part.LineSegment(Vector(14, 82, 0), Vector(19, 82, 0)),  # 1
    Part.LineSegment(Vector(19, 82, 0), Vector(22, 76, 0)),  # 2
    Part.LineSegment(Vector(22, 76, 0), Vector(19, 71, 0)),  # 3
    Part.LineSegment(Vector(19, 71, 0), Vector(14, 71, 0)),  # 4
    Part.LineSegment(Vector(14, 71, 0), Vector(11, 76, 0)),  # 5
    Part.LineSegment(Vector(74, 82, 0), Vector(79, 82, 0)),  # 6
    Part.LineSegment(Vector(79, 82, 0), Vector(82, 76, 0)),  # 7
    Part.LineSegment(Vector(82, 76, 0), Vector(79, 71, 0)),  # 8
    Part.LineSegment(Vector(79, 71, 0), Vector(74, 71, 0)),  # 9
    Part.LineSegment(Vector(74, 71, 0), Vector(71, 76, 0)),  # 10
    Part.LineSegment(Vector(71, 76, 0), Vector(74, 82, 0)),  # 11
    Part.LineSegment(Vector(74, 42, 0), Vector(79, 42, 0)),  # 12
    Part.LineSegment(Vector(79, 42, 0), Vector(82, 36, 0)),  # 13
    Part.LineSegment(Vector(82, 36, 0), Vector(79, 31, 0)),  # 14
    Part.LineSegment(Vector(79, 31, 0), Vector(74, 31, 0)),  # 15
    Part.LineSegment(Vector(74, 31, 0), Vector(71, 36, 0)),  # 16
    Part.LineSegment(Vector(71, 36, 0), Vector(74, 42, 0)),  # 17
    Part.LineSegment(Vector(14, 42, 0), Vector(19, 42, 0)),  # 18
    Part.LineSegment(Vector(19, 42, 0), Vector(22, 36, 0)),  # 19
    Part.LineSegment(Vector(22, 36, 0), Vector(19, 31, 0)),  # 20
    Part.LineSegment(Vector(19, 31, 0), Vector(14, 31, 0)),  # 21
    Part.LineSegment(Vector(14, 31, 0), Vector(11, 36, 0)),  # 22
    Part.LineSegment(Vector(11, 36, 0), Vector(14, 42, 0)),  # 23
], False)
sketch5.addConstraint([
    Sketcher.Constraint("Coincident", 0, 2, 1, 1),
    Sketcher.Constraint("Coincident", 1, 2, 2, 1),
    Sketcher.Constraint("Coincident", 2, 2, 3, 1),
    Sketcher.Constraint("Coincident", 3, 2, 4, 1),
    Sketcher.Constraint("Coincident", 4, 2, 5, 1),
    Sketcher.Constraint("Coincident", 5, 2, 0, 1),
    Sketcher.Constraint("Coincident", 6, 2, 7, 1),
    Sketcher.Constraint("Coincident", 7, 2, 8, 1),
    Sketcher.Constraint("Coincident", 8, 2, 9, 1),
    Sketcher.Constraint("Coincident", 9, 2, 10, 1),
    Sketcher.Constraint("Coincident", 10, 2, 11, 1),
    Sketcher.Constraint("Coincident", 11, 2, 6, 1),
    Sketcher.Constraint("Coincident", 12, 2, 13, 1),
    Sketcher.Constraint("Coincident", 13, 2, 14, 1),
    Sketcher.Constraint("Coincident", 14, 2, 15, 1),
    Sketcher.Constraint("Coincident", 15, 2, 16, 1),
    Sketcher.Constraint("Coincident", 16, 2, 17, 1),
    Sketcher.Constraint("Coincident", 17, 2, 12, 1),
    Sketcher.Constraint("Coincident", 18, 2, 19, 1),
    Sketcher.Constraint("Coincident", 19, 2, 20, 1),
    Sketcher.Constraint("Coincident", 20, 2, 21, 1),
    Sketcher.Constraint("Coincident", 21, 2, 22, 1),
    Sketcher.Constraint("Coincident", 22, 2, 23, 1),
    Sketcher.Constraint("Coincident", 23, 2, 18, 1),
    Sketcher.Constraint("Horizontal", 1),
    Sketcher.Constraint("Horizontal", 4),
    Sketcher.Constraint("Horizontal", 6),
    Sketcher.Constraint("Horizontal", 9),
    Sketcher.Constraint("Horizontal", 12),
    Sketcher.Constraint("Horizontal", 15),
    Sketcher.Constraint("Horizontal", 18),
    Sketcher.Constraint("Horizontal", 21),
    Sketcher.Constraint("Parallel", 0, 3),
    Sketcher.Constraint("Parallel", 2, 5),
    Sketcher.Constraint("Parallel", 5, 7),
    Sketcher.Constraint("Parallel", 3, 8),
    Sketcher.Constraint("Parallel", 7, 10),
    Sketcher.Constraint("Parallel", 8, 11),
    Sketcher.Constraint("Parallel", 10, 13),
    Sketcher.Constraint("Parallel", 11, 14),
    Sketcher.Constraint("Parallel", 13, 16),
    Sketcher.Constraint("Parallel", 14, 17),
    Sketcher.Constraint("Parallel", 16, 19),
    Sketcher.Constraint("Parallel", 17, 20),
    Sketcher.Constraint("Parallel", 19, 22),
    Sketcher.Constraint("Parallel", 20, 23),
    Sketcher.Constraint("Horizontal", 2, 2, 5, 2),
    Sketcher.Constraint("Horizontal", 1, 2, 6, 2),
    Sketcher.Constraint("Horizontal", 5, 2, 7, 2),
    Sketcher.Constraint("Horizontal", 4, 2, 8, 2),
    Sketcher.Constraint("Horizontal", 7, 2, 10, 2),
    Sketcher.Constraint("Horizontal", 13, 2, 16, 2),
    Sketcher.Constraint("Horizontal", 17, 2, 18, 2),
    Sketcher.Constraint("Horizontal", 16, 2, 19, 2),
    Sketcher.Constraint("Horizontal", 15, 2, 20, 2),
    Sketcher.Constraint("Horizontal", 19, 2, 22, 2),
    Sketcher.Constraint("Vertical", 1, 2, 3, 2),
    Sketcher.Constraint("Vertical", 0, 2, 4, 2),
    Sketcher.Constraint("Vertical", 8, 2, 12, 2),
    Sketcher.Constraint("Vertical", 7, 2, 13, 2),
    Sketcher.Constraint("Vertical", 12, 2, 14, 2),
    Sketcher.Constraint("Vertical", 11, 2, 15, 2),
    Sketcher.Constraint("Vertical", 3, 2, 18, 2),
    Sketcher.Constraint("Vertical", 4, 2, 21, 2),
    Sketcher.Constraint("Equal", 4, 6),
    Sketcher.Constraint("Angle", 0, Q("59.999999 deg")),
    Sketcher.Constraint("DistanceX", 1, 2, 6, 2, 60.0),
    Sketcher.Constraint("DistanceY", 12, 2, 6, 2, 40.0),
    Sketcher.Constraint("DistanceY", -1, 1, 2, 2, 76.5),
    Sketcher.Constraint("DistanceY", 3, 2, 1, 2, 10.1),
    Sketcher.Constraint("DistanceX", 6, 1, 6, 2, 5.831238),
    Sketcher.Constraint("DistanceX", -1, 1, 0, 2, 13.584381),
])
pocket4 = doc.addObject("PartDesign::Pocket", "Pocket003")
body.addObject(pocket4)
pocket4.Profile = sketch5
pocket4.Length = 5.7
pocket4.Reversed = True
doc.recompute()

fillet = doc.addObject("PartDesign::Fillet", "Fillet")
body.addObject(fillet)
fillet.Base = (pocket4, edges_at(pocket4, [
    (93, 113, 12),
    (93, 0, 12),
    (0, 113, 12),
    (0, 0, 12),
]))
fillet.Radius = 4
doc.recompute()

chamfer = doc.addObject("PartDesign::Chamfer", "Chamfer")
body.addObject(chamfer)
chamfer.Base = (fillet, edges_at(fillet, [
    (0, 56.5, 7),
    (0, 56.5, 17),
    (1.172, 111.828, 7),
    (1.172, 111.828, 17),
    (1.172, 1.172, 7),
    (1.172, 1.172, 17),
    (46.5, 0, 17),
    (46.5, 0, 7),
    (91.828, 1.172, 17),
    (91.828, 1.172, 7),
    (93, 56.5, 17),
    (93, 56.5, 7),
    (91.828, 111.828, 17),
    (91.828, 111.828, 7),
    (46.5, 113, 7),
    (46.5, 113, 17),
]))
chamfer.Size = 0.4

doc.recompute()
